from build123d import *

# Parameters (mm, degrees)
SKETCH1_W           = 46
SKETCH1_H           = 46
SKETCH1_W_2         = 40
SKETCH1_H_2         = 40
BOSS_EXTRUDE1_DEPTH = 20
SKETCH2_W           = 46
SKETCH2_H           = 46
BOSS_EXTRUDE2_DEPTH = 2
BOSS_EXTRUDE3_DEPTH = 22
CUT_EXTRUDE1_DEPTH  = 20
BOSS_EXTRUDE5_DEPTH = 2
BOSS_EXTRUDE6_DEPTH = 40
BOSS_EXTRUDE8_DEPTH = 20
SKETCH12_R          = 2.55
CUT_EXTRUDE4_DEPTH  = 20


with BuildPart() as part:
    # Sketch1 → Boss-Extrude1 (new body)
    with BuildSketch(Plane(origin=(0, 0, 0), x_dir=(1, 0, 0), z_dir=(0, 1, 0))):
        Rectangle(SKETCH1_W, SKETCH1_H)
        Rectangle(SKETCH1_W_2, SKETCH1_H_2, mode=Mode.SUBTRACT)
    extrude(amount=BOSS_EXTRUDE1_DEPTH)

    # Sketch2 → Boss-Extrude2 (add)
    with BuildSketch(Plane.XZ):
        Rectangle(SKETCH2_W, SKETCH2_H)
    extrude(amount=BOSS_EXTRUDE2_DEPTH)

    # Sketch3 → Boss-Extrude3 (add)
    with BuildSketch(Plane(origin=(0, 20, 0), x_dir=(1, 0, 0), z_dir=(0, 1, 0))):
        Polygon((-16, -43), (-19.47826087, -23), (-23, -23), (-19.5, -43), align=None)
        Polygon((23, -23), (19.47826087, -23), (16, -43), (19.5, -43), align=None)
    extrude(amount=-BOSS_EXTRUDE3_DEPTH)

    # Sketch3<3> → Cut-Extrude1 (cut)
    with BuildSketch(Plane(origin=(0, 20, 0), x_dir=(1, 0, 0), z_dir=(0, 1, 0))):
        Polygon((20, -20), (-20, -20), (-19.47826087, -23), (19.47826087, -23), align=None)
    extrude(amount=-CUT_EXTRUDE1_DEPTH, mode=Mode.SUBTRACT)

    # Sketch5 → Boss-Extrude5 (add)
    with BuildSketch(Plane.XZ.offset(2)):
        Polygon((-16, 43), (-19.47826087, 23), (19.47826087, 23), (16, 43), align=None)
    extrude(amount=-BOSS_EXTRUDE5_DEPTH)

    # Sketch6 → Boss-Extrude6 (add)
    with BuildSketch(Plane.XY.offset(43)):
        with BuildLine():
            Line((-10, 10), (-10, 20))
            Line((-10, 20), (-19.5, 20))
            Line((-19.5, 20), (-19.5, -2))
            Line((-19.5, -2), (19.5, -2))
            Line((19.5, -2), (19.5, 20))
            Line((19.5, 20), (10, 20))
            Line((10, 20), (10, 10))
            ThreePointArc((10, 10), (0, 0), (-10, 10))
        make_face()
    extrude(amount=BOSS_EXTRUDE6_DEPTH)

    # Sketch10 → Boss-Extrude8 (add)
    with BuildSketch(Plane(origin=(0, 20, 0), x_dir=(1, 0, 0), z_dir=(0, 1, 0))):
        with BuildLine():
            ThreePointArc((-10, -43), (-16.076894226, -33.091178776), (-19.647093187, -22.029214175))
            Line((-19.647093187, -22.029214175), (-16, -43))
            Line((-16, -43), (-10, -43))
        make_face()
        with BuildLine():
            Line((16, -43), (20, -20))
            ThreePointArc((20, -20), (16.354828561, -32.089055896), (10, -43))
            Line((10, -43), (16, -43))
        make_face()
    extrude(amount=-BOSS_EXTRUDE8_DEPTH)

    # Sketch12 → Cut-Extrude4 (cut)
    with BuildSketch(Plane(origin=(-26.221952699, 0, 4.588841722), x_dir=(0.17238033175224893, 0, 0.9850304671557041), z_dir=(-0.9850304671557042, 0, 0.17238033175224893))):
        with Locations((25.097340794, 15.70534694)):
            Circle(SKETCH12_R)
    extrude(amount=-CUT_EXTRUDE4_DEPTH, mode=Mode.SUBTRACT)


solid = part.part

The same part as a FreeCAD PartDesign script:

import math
import FreeCAD as App
import Part
import Sketcher
Q = App.Units.Quantity

doc = App.newDocument("Part")
body = doc.addObject("PartDesign::Body", "Body")

# Sketch on XZ plane
sketch1 = body.newObject("Sketcher::SketchObject", "Sketch")
sketch1.AttachmentSupport = (doc.getObject("XZ_Plane"), [""])
sketch1.MapMode = "FlatFace"
sketch1.addGeometry([
    Part.LineSegment(App.Vector(-23, -23, 0), App.Vector(-23, 23, 0)),  # 0
    Part.LineSegment(App.Vector(-23, 23, 0), App.Vector(23, 23, 0)),  # 1
    Part.LineSegment(App.Vector(23, 23, 0), App.Vector(23, -23, 0)),  # 2
    Part.LineSegment(App.Vector(23, -23, 0), App.Vector(-23, -23, 0)),  # 3
    Part.LineSegment(App.Vector(20, 20, 0), App.Vector(-20, 20, 0)),  # 4
    Part.LineSegment(App.Vector(-20, 20, 0), App.Vector(-20, -20, 0)),  # 5
    Part.LineSegment(App.Vector(-20, -20, 0), App.Vector(20, -20, 0)),  # 6
    Part.LineSegment(App.Vector(20, -20, 0), App.Vector(20, 20, 0)),  # 7
], False)
sketch1.addConstraint([
    Sketcher.Constraint("Coincident", 0, 2, 1, 1),
    Sketcher.Constraint("Coincident", 1, 2, 2, 1),
    Sketcher.Constraint("Coincident", 2, 2, 3, 1),
    Sketcher.Constraint("Coincident", 3, 2, 0, 1),
    Sketcher.Constraint("Coincident", 4, 2, 5, 1),
    Sketcher.Constraint("Coincident", 5, 2, 6, 1),
    Sketcher.Constraint("Coincident", 6, 2, 7, 1),
    Sketcher.Constraint("Coincident", 7, 2, 4, 1),
    Sketcher.Constraint("Vertical", 0),
    Sketcher.Constraint("Horizontal", 1),
    Sketcher.Constraint("Vertical", 2),
    Sketcher.Constraint("Horizontal", 3),
    Sketcher.Constraint("Horizontal", 4),
    Sketcher.Constraint("Vertical", 5),
    Sketcher.Constraint("Horizontal", 6),
    Sketcher.Constraint("Vertical", 7),
    Sketcher.Constraint("Symmetric", 0, 2, 2, 2, -1, 1),
    Sketcher.Constraint("Symmetric", 4, 2, 6, 2, -1, 1),
    Sketcher.Constraint("Equal", 3, 0),
    Sketcher.Constraint("Equal", 6, 5),
    Sketcher.Constraint("DistanceX", 1, 1, 1, 2, Q("46 mm")),
    Sketcher.Constraint("DistanceX", 4, 2, 4, 1, Q("40 mm")),
])
pad1 = body.newObject("PartDesign::Pad", "Pad")
pad1.Profile = sketch1
pad1.Length = 20
pad1.Reversed = True

# Sketch on XZ plane
sketch2 = body.newObject("Sketcher::SketchObject", "Sketch001")
sketch2.AttachmentSupport = (doc.getObject("XZ_Plane"), [""])
sketch2.MapMode = "FlatFace"
sketch2.addGeometry([
    Part.LineSegment(App.Vector(-23, 23, 0), App.Vector(-23, -23, 0)),
    Part.LineSegment(App.Vector(-23, -23, 0), App.Vector(23, -23, 0)),
    Part.LineSegment(App.Vector(23, -23, 0), App.Vector(23, 23, 0)),
    Part.LineSegment(App.Vector(23, 23, 0), App.Vector(-23, 23, 0)),
], False)
sketch2.addConstraint([
    Sketcher.Constraint("Coincident", 0, 2, 1, 1),
    Sketcher.Constraint("Coincident", 1, 2, 2, 1),
    Sketcher.Constraint("Coincident", 2, 2, 3, 1),
    Sketcher.Constraint("Coincident", 3, 2, 0, 1),
    Sketcher.Constraint("Vertical", 0),
    Sketcher.Constraint("Horizontal", 1),
    Sketcher.Constraint("Vertical", 2),
    Sketcher.Constraint("Horizontal", 3),
    Sketcher.Constraint("Symmetric", 0, 2, 2, 2, -1, 1),
    Sketcher.Constraint("Equal", 3, 0),
    Sketcher.Constraint("DistanceX", 1, 1, 1, 2, Q("46 mm")),
])
pad2 = body.newObject("PartDesign::Pad", "Pad001")
pad2.Profile = sketch2
pad2.Length = 2

# Sketch on XZ plane
sketch3 = body.newObject("Sketcher::SketchObject", "Sketch002")
sketch3.AttachmentSupport = (doc.getObject("XZ_Plane"), [""])
sketch3.MapMode = "FlatFace"
sketch3.AttachmentOffset = App.Placement(App.Vector(0, 0, -20), App.Rotation())
sketch3.addGeometry([
    Part.LineSegment(App.Vector(-16, 43, 0), App.Vector(-19.5, 23, 0)),  # 0
    Part.LineSegment(App.Vector(-19.5, 23, 0), App.Vector(-23, 23, 0)),  # 1
    Part.LineSegment(App.Vector(-23, 23, 0), App.Vector(-19.5, 43, 0)),  # 2
    Part.LineSegment(App.Vector(-19.5, 43, 0), App.Vector(-16, 43, 0)),  # 3
    Part.LineSegment(App.Vector(23, 23, 0), App.Vector(19.5, 23, 0)),  # 4
    Part.LineSegment(App.Vector(19.5, 23, 0), App.Vector(16, 43, 0)),  # 5
    Part.LineSegment(App.Vector(16, 43, 0), App.Vector(19.5, 43, 0)),  # 6
    Part.LineSegment(App.Vector(19.5, 43, 0), App.Vector(23, 23, 0)),  # 7
], False)
sketch3.addConstraint([
    Sketcher.Constraint("Coincident", 0, 2, 1, 1),
    Sketcher.Constraint("Coincident", 1, 2, 2, 1),
    Sketcher.Constraint("Coincident", 2, 2, 3, 1),
    Sketcher.Constraint("Coincident", 3, 2, 0, 1),
    Sketcher.Constraint("Coincident", 4, 2, 5, 1),
    Sketcher.Constraint("Coincident", 5, 2, 6, 1),
    Sketcher.Constraint("Coincident", 6, 2, 7, 1),
    Sketcher.Constraint("Coincident", 7, 2, 4, 1),
    Sketcher.Constraint("Horizontal", 1),
    Sketcher.Constraint("Horizontal", 3),
    Sketcher.Constraint("Horizontal", 4),
    Sketcher.Constraint("Horizontal", 6),
    Sketcher.Constraint("Symmetric", 0, 2, 4, 2, -2),
    Sketcher.Constraint("Symmetric", 3, 2, 5, 2, -2),
    Sketcher.Constraint("Equal", 1, 4),
    Sketcher.Constraint("Equal", 3, 6),
    Sketcher.Constraint("DistanceX", 3, 1, 3, 2, Q("3.5 mm")),
    Sketcher.Constraint("DistanceY", -1, 1, 0, 2, Q("23 mm")),
    Sketcher.Constraint("DistanceX", 1, 2, -1, 1, Q("23 mm")),
    Sketcher.Constraint("DistanceY", -1, 1, 2, 2, Q("43 mm")),
    Sketcher.Constraint("DistanceX", 3, 2, -1, 1, Q("16 mm")),
    Sketcher.Constraint("DistanceX", 1, 2, 1, 1, Q("3.521739 mm")),
])
pad3 = body.newObject("PartDesign::Pad", "Pad002")
pad3.Profile = sketch3
pad3.Length = 22

# Sketch on XZ plane
sketch4 = body.newObject("Sketcher::SketchObject", "Sketch003")
sketch4.AttachmentSupport = (doc.getObject("XZ_Plane"), [""])
sketch4.MapMode = "FlatFace"
sketch4.AttachmentOffset = App.Placement(App.Vector(0, 0, -20), App.Rotation())
sketch4.addGeometry([
    Part.LineSegment(App.Vector(20, 20, 0), App.Vector(-20, 20, 0)),
    Part.LineSegment(App.Vector(-20, 20, 0), App.Vector(-19.5, 23, 0)),
    Part.LineSegment(App.Vector(-19.5, 23, 0), App.Vector(19.5, 23, 0)),
    Part.LineSegment(App.Vector(19.5, 23, 0), App.Vector(20, 20, 0)),
], False)
sketch4.addConstraint([
    Sketcher.Constraint("Coincident", 0, 2, 1, 1),
    Sketcher.Constraint("Coincident", 1, 2, 2, 1),
    Sketcher.Constraint("Coincident", 2, 2, 3, 1),
    Sketcher.Constraint("Coincident", 3, 2, 0, 1),
    Sketcher.Constraint("Horizontal", 0),
    Sketcher.Constraint("Horizontal", 2),
    Sketcher.Constraint("Equal", 1, 3),
    Sketcher.Constraint("DistanceX", 0, 2, 0, 1, Q("40 mm")),
    Sketcher.Constraint("DistanceX", 0, 2, -1, 1, Q("20 mm")),
    Sketcher.Constraint("DistanceY", -1, 1, 0, 2, Q("20 mm")),
    Sketcher.Constraint("DistanceY", -1, 1, 1, 2, Q("23 mm")),
    Sketcher.Constraint("DistanceX", 2, 1, 2, 2, Q("38.956522 mm")),
])
pocket1 = body.newObject("PartDesign::Pocket", "Pocket")
pocket1.Profile = sketch4
pocket1.Length = 20
pocket1.Reversed = True

# Sketch on XZ plane
sketch5 = body.newObject("Sketcher::SketchObject", "Sketch004")
sketch5.AttachmentSupport = (doc.getObject("XZ_Plane"), [""])
sketch5.MapMode = "FlatFace"
sketch5.AttachmentOffset = App.Placement(App.Vector(0, 0, 2), App.Rotation())
sketch5.addGeometry([
    Part.LineSegment(App.Vector(-16, 43, 0), App.Vector(-19, 23, 0)),
    Part.LineSegment(App.Vector(-19, 23, 0), App.Vector(19, 23, 0)),
    Part.LineSegment(App.Vector(19, 23, 0), App.Vector(16, 43, 0)),
    Part.LineSegment(App.Vector(16, 43, 0), App.Vector(-16, 43, 0)),
], False)
sketch5.addConstraint([
    Sketcher.Constraint("Coincident", 0, 2, 1, 1),
    Sketcher.Constraint("Coincident", 1, 2, 2, 1),
    Sketcher.Constraint("Coincident", 2, 2, 3, 1),
    Sketcher.Constraint("Coincident", 3, 2, 0, 1),
    Sketcher.Constraint("Horizontal", 1),
    Sketcher.Constraint("Horizontal", 3),
    Sketcher.Constraint("Equal", 0, 2),
    Sketcher.Constraint("DistanceX", 3, 2, 3, 1, Q("32 mm")),
    Sketcher.Constraint("DistanceY", -1, 1, 0, 2, Q("23 mm")),
    Sketcher.Constraint("DistanceX", -1, 1, 2, 2, Q("16 mm")),
    Sketcher.Constraint("DistanceY", -1, 1, 2, 2, Q("43 mm")),
    Sketcher.Constraint("DistanceX", 1, 1, 1, 2, Q("38.956522 mm")),
])
pad4 = body.newObject("PartDesign::Pad", "Pad003")
pad4.Profile = sketch5
pad4.Length = 2
pad4.Reversed = True

# Sketch on XY plane
sketch6 = body.newObject("Sketcher::SketchObject", "Sketch005")
sketch6.AttachmentSupport = (doc.getObject("XY_Plane"), [""])
sketch6.MapMode = "FlatFace"
sketch6.AttachmentOffset = App.Placement(App.Vector(0, 0, 43), App.Rotation())
sketch6.addGeometry([
    Part.LineSegment(App.Vector(-10, 10, 0), App.Vector(-10, 20, 0)),  # 0
    Part.LineSegment(App.Vector(-10, 20, 0), App.Vector(-20, 20, 0)),  # 1
    Part.LineSegment(App.Vector(-20, 20, 0), App.Vector(-20, -2, 0)),  # 2
    Part.LineSegment(App.Vector(-20, -2, 0), App.Vector(20, -2, 0)),  # 3
    Part.LineSegment(App.Vector(20, -2, 0), App.Vector(20, 20, 0)),  # 4
    Part.LineSegment(App.Vector(20, 20, 0), App.Vector(10, 20, 0)),  # 5
    Part.LineSegment(App.Vector(10, 20, 0), App.Vector(10, 10, 0)),  # 6
    Part.ArcOfCircle(Part.Circle(App.Vector(0, 10, 0), App.Vector(0, 0, 1), 10), math.radians(180), math.radians(360)),  # 7
], False)
sketch6.addConstraint([
    Sketcher.Constraint("Coincident", 0, 2, 1, 1),
    Sketcher.Constraint("Coincident", 1, 2, 2, 1),
    Sketcher.Constraint("Coincident", 2, 2, 3, 1),
    Sketcher.Constraint("Coincident", 3, 2, 4, 1),
    Sketcher.Constraint("Coincident", 4, 2, 5, 1),
    Sketcher.Constraint("Coincident", 5, 2, 6, 1),
    Sketcher.Constraint("Tangent", 6, 2, 7, 2),
    Sketcher.Constraint("Tangent", 7, 1, 0, 1),
    Sketcher.Constraint("Vertical", 0),
    Sketcher.Constraint("Horizontal", 1),
    Sketcher.Constraint("Vertical", 2),
    Sketcher.Constraint("Horizontal", 3),
    Sketcher.Constraint("Vertical", 4),
    Sketcher.Constraint("Horizontal", 5),
    Sketcher.Constraint("Vertical", 6),
    Sketcher.Constraint("Symmetric", 1, 2, 4, 2, -2),
    Sketcher.Constraint("PointOnObject", 7, 3, -2),
    Sketcher.Constraint("Radius", 7, Q("10 mm")),
    Sketcher.Constraint("DistanceX", 3, 1, 3, 2, Q("39 mm")),
    Sketcher.Constraint("DistanceY", 0, 1, 0, 2, Q("10 mm")),
    Sketcher.Constraint("DistanceY", 2, 2, 2, 1, Q("22 mm")),
    Sketcher.Constraint("DistanceY", -1, 1, 7, 3, Q("10 mm")),
])
pad5 = body.newObject("PartDesign::Pad", "Pad004")
pad5.Profile = sketch6
pad5.Length = 40

# Sketch on XZ plane
sketch7 = body.newObject("Sketcher::SketchObject", "Sketch006")
sketch7.AttachmentSupport = (doc.getObject("XZ_Plane"), [""])
sketch7.MapMode = "FlatFace"
sketch7.AttachmentOffset = App.Placement(App.Vector(0, 0, -20), App.Rotation())
sketch7.addGeometry([
    Part.ArcOfCircle(Part.Circle(App.Vector(28, 13, 0), App.Vector(0, 0, 1), 49), math.radians(142), math.radians(169)),  # 0
    Part.LineSegment(App.Vector(-20, 22, 0), App.Vector(-16, 43, 0)),  # 1
    Part.LineSegment(App.Vector(-16, 43, 0), App.Vector(-10, 43, 0)),  # 2
    Part.LineSegment(App.Vector(16, 43, 0), App.Vector(20, 20, 0)),  # 3
    Part.ArcOfCircle(Part.Circle(App.Vector(-33, 11, 0), App.Vector(0, 0, 1), 54), math.radians(10), math.radians(37)),  # 4
    Part.LineSegment(App.Vector(10, 43, 0), App.Vector(16, 43, 0)),  # 5
], False)
sketch7.addConstraint([
    Sketcher.Constraint("Coincident", 0, 2, 1, 1),
    Sketcher.Constraint("Coincident", 1, 2, 2, 1),
    Sketcher.Constraint("Coincident", 2, 2, 0, 1),
    Sketcher.Constraint("Coincident", 3, 2, 4, 1),
    Sketcher.Constraint("Coincident", 4, 2, 5, 1),
    Sketcher.Constraint("Coincident", 5, 2, 3, 1),
    Sketcher.Constraint("Horizontal", 2),
    Sketcher.Constraint("Horizontal", 5),
    Sketcher.Constraint("Symmetric", 2, 2, 4, 2, -2),
    Sketcher.Constraint("Equal", 2, 5),
    Sketcher.Constraint("DistanceX", 2, 1, 2, 2, Q("6 mm")),
    Sketcher.Constraint("DistanceX", 1, 2, -1, 1, Q("16 mm")),
    Sketcher.Constraint("DistanceY", -1, 1, 1, 2, Q("43 mm")),
    Sketcher.Constraint("DistanceX", -1, 1, 3, 2, Q("20 mm")),
    Sketcher.Constraint("DistanceY", -1, 1, 3, 2, Q("20 mm")),
    Sketcher.Constraint("Radius", 0, Q("48.968073 mm")),
    Sketcher.Constraint("Radius", 4, Q("53.959157 mm")),
    Sketcher.Constraint("DistanceY", 0, 3, 0, 2, Q("9.402998 mm")),
    Sketcher.Constraint("Distance", 1, Q("21.285562 mm")),
])
pad6 = body.newObject("PartDesign::Pad", "Pad005")
pad6.Profile = sketch7
pad6.Length = 20

# Sketch on an angled plane
sketch8 = body.newObject("Sketcher::SketchObject", "Sketch007")
sketch8.Placement = App.Placement(App.Vector(-26.221953, 0, 4.588842), App.Rotation(App.Vector(0.172380332, 0, 0.985030467), App.Vector(0, 1, 0), App.Vector(-0.985030467, 0, 0.172380332), "ZXY"))
sketch8.addGeometry(Part.Circle(App.Vector(25.1, 15.7, 0), App.Vector(0, 0, 1), 2.5), False)
sketch8.addConstraint([
    Sketcher.Constraint("Diameter", 0, Q("5.1 mm")),
    Sketcher.Constraint("DistanceX", -1, 1, 0, 3, Q("25.097341 mm")),
    Sketcher.Constraint("DistanceY", -1, 1, 0, 3, Q("15.705347 mm")),
])
pocket2 = body.newObject("PartDesign::Pocket", "Pocket001")
pocket2.Profile = sketch8
pocket2.Length = 20

doc.recompute()
